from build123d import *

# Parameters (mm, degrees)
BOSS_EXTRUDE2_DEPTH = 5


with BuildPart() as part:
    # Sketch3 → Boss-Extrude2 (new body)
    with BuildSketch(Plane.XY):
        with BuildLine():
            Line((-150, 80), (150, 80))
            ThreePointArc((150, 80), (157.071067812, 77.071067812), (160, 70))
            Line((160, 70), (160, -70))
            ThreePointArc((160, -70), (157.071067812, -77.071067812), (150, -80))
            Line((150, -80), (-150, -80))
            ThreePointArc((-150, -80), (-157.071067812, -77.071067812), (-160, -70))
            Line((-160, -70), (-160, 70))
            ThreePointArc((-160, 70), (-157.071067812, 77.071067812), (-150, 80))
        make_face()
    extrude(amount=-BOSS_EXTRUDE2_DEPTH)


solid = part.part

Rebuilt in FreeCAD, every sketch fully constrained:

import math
import FreeCAD as App
import Part
import Sketcher

V = App.Vector

doc = App.newDocument("Part")
params = doc.addObject("Spreadsheet::Sheet", "Params")
for row, (alias, value) in enumerate([
    ("sketch1_radius", "10 mm"),
    ("sketch1_width", "300 mm"),
    ("sketch1_height", "140 mm"),
    ("pad1_length", "5 mm"),
], start=1):
    params.set(f"A{row}", alias)
    params.set(f"B{row}", "=" + value)
    params.setAlias(f"B{row}", alias)

body = doc.addObject("PartDesign::Body", "Body")

sketch1 = body.newObject("Sketcher::SketchObject", "Sketch")
sketch1.AttachmentSupport = (doc.getObject("XY_Plane"), [""])
sketch1.MapMode = "FlatFace"
sketch1.addGeometry([
    Part.LineSegment(V(150, 80, 0), V(-150, 80, 0)),
    Part.ArcOfCircle(Part.Circle(V(-150, 70, 0), V(0, 0, 1), 10), math.radians(90), math.radians(180)),
    Part.LineSegment(V(-160, 70, 0), V(-160, -70, 0)),
    Part.ArcOfCircle(Part.Circle(V(-150, -70, 0), V(0, 0, 1), 10), math.radians(180), math.radians(270)),
    Part.LineSegment(V(-150, -80, 0), V(150, -80, 0)),
    Part.ArcOfCircle(Part.Circle(V(150, -70, 0), V(0, 0, 1), 10), math.radians(-90), math.radians(0)),
    Part.LineSegment(V(160, -70, 0), V(160, 70, 0)),
    Part.ArcOfCircle(Part.Circle(V(150, 70, 0), V(0, 0, 1), 10), math.radians(0), math.radians(90)),
], False)
sketch1.addConstraint([
    Sketcher.Constraint("Tangent", 0, 2, 1, 1),
    Sketcher.Constraint("Tangent", 1, 2, 2, 1),
    Sketcher.Constraint("Tangent", 2, 2, 3, 1),
    Sketcher.Constraint("Tangent", 3, 2, 4, 1),
    Sketcher.Constraint("Tangent", 4, 2, 5, 1),
    Sketcher.Constraint("Tangent", 5, 2, 6, 1),
    Sketcher.Constraint("Tangent", 6, 2, 7, 1),
    Sketcher.Constraint("Tangent", 7, 2, 0, 1),
    Sketcher.Constraint("Horizontal", 0),
    Sketcher.Constraint("Vertical", 2),
    Sketcher.Constraint("Horizontal", 4),
    Sketcher.Constraint("Vertical", 6),
    Sketcher.Constraint("Equal", 1, 3),
    Sketcher.Constraint("Equal", 3, 5),
    Sketcher.Constraint("Equal", 5, 7),
    Sketcher.Constraint("Symmetric", 1, 3, 5, 3, -1, 1),
    Sketcher.Constraint("Radius", 1, 10.0),
    Sketcher.Constraint("DistanceX", 0, 2, 0, 1, 300.0),
    Sketcher.Constraint("DistanceY", 2, 2, 2, 1, 140.0),
])
sketch1.setExpression("Constraints[16]", "Params.sketch1_radius")
sketch1.setExpression("Constraints[17]", "Params.sketch1_width")
sketch1.setExpression("Constraints[18]", "Params.sketch1_height")
pad1 = body.newObject("PartDesign::Pad", "Pad")
pad1.Profile = sketch1
pad1.setExpression("Length", "Params.pad1_length")
pad1.Reversed = True

doc.recompute()
